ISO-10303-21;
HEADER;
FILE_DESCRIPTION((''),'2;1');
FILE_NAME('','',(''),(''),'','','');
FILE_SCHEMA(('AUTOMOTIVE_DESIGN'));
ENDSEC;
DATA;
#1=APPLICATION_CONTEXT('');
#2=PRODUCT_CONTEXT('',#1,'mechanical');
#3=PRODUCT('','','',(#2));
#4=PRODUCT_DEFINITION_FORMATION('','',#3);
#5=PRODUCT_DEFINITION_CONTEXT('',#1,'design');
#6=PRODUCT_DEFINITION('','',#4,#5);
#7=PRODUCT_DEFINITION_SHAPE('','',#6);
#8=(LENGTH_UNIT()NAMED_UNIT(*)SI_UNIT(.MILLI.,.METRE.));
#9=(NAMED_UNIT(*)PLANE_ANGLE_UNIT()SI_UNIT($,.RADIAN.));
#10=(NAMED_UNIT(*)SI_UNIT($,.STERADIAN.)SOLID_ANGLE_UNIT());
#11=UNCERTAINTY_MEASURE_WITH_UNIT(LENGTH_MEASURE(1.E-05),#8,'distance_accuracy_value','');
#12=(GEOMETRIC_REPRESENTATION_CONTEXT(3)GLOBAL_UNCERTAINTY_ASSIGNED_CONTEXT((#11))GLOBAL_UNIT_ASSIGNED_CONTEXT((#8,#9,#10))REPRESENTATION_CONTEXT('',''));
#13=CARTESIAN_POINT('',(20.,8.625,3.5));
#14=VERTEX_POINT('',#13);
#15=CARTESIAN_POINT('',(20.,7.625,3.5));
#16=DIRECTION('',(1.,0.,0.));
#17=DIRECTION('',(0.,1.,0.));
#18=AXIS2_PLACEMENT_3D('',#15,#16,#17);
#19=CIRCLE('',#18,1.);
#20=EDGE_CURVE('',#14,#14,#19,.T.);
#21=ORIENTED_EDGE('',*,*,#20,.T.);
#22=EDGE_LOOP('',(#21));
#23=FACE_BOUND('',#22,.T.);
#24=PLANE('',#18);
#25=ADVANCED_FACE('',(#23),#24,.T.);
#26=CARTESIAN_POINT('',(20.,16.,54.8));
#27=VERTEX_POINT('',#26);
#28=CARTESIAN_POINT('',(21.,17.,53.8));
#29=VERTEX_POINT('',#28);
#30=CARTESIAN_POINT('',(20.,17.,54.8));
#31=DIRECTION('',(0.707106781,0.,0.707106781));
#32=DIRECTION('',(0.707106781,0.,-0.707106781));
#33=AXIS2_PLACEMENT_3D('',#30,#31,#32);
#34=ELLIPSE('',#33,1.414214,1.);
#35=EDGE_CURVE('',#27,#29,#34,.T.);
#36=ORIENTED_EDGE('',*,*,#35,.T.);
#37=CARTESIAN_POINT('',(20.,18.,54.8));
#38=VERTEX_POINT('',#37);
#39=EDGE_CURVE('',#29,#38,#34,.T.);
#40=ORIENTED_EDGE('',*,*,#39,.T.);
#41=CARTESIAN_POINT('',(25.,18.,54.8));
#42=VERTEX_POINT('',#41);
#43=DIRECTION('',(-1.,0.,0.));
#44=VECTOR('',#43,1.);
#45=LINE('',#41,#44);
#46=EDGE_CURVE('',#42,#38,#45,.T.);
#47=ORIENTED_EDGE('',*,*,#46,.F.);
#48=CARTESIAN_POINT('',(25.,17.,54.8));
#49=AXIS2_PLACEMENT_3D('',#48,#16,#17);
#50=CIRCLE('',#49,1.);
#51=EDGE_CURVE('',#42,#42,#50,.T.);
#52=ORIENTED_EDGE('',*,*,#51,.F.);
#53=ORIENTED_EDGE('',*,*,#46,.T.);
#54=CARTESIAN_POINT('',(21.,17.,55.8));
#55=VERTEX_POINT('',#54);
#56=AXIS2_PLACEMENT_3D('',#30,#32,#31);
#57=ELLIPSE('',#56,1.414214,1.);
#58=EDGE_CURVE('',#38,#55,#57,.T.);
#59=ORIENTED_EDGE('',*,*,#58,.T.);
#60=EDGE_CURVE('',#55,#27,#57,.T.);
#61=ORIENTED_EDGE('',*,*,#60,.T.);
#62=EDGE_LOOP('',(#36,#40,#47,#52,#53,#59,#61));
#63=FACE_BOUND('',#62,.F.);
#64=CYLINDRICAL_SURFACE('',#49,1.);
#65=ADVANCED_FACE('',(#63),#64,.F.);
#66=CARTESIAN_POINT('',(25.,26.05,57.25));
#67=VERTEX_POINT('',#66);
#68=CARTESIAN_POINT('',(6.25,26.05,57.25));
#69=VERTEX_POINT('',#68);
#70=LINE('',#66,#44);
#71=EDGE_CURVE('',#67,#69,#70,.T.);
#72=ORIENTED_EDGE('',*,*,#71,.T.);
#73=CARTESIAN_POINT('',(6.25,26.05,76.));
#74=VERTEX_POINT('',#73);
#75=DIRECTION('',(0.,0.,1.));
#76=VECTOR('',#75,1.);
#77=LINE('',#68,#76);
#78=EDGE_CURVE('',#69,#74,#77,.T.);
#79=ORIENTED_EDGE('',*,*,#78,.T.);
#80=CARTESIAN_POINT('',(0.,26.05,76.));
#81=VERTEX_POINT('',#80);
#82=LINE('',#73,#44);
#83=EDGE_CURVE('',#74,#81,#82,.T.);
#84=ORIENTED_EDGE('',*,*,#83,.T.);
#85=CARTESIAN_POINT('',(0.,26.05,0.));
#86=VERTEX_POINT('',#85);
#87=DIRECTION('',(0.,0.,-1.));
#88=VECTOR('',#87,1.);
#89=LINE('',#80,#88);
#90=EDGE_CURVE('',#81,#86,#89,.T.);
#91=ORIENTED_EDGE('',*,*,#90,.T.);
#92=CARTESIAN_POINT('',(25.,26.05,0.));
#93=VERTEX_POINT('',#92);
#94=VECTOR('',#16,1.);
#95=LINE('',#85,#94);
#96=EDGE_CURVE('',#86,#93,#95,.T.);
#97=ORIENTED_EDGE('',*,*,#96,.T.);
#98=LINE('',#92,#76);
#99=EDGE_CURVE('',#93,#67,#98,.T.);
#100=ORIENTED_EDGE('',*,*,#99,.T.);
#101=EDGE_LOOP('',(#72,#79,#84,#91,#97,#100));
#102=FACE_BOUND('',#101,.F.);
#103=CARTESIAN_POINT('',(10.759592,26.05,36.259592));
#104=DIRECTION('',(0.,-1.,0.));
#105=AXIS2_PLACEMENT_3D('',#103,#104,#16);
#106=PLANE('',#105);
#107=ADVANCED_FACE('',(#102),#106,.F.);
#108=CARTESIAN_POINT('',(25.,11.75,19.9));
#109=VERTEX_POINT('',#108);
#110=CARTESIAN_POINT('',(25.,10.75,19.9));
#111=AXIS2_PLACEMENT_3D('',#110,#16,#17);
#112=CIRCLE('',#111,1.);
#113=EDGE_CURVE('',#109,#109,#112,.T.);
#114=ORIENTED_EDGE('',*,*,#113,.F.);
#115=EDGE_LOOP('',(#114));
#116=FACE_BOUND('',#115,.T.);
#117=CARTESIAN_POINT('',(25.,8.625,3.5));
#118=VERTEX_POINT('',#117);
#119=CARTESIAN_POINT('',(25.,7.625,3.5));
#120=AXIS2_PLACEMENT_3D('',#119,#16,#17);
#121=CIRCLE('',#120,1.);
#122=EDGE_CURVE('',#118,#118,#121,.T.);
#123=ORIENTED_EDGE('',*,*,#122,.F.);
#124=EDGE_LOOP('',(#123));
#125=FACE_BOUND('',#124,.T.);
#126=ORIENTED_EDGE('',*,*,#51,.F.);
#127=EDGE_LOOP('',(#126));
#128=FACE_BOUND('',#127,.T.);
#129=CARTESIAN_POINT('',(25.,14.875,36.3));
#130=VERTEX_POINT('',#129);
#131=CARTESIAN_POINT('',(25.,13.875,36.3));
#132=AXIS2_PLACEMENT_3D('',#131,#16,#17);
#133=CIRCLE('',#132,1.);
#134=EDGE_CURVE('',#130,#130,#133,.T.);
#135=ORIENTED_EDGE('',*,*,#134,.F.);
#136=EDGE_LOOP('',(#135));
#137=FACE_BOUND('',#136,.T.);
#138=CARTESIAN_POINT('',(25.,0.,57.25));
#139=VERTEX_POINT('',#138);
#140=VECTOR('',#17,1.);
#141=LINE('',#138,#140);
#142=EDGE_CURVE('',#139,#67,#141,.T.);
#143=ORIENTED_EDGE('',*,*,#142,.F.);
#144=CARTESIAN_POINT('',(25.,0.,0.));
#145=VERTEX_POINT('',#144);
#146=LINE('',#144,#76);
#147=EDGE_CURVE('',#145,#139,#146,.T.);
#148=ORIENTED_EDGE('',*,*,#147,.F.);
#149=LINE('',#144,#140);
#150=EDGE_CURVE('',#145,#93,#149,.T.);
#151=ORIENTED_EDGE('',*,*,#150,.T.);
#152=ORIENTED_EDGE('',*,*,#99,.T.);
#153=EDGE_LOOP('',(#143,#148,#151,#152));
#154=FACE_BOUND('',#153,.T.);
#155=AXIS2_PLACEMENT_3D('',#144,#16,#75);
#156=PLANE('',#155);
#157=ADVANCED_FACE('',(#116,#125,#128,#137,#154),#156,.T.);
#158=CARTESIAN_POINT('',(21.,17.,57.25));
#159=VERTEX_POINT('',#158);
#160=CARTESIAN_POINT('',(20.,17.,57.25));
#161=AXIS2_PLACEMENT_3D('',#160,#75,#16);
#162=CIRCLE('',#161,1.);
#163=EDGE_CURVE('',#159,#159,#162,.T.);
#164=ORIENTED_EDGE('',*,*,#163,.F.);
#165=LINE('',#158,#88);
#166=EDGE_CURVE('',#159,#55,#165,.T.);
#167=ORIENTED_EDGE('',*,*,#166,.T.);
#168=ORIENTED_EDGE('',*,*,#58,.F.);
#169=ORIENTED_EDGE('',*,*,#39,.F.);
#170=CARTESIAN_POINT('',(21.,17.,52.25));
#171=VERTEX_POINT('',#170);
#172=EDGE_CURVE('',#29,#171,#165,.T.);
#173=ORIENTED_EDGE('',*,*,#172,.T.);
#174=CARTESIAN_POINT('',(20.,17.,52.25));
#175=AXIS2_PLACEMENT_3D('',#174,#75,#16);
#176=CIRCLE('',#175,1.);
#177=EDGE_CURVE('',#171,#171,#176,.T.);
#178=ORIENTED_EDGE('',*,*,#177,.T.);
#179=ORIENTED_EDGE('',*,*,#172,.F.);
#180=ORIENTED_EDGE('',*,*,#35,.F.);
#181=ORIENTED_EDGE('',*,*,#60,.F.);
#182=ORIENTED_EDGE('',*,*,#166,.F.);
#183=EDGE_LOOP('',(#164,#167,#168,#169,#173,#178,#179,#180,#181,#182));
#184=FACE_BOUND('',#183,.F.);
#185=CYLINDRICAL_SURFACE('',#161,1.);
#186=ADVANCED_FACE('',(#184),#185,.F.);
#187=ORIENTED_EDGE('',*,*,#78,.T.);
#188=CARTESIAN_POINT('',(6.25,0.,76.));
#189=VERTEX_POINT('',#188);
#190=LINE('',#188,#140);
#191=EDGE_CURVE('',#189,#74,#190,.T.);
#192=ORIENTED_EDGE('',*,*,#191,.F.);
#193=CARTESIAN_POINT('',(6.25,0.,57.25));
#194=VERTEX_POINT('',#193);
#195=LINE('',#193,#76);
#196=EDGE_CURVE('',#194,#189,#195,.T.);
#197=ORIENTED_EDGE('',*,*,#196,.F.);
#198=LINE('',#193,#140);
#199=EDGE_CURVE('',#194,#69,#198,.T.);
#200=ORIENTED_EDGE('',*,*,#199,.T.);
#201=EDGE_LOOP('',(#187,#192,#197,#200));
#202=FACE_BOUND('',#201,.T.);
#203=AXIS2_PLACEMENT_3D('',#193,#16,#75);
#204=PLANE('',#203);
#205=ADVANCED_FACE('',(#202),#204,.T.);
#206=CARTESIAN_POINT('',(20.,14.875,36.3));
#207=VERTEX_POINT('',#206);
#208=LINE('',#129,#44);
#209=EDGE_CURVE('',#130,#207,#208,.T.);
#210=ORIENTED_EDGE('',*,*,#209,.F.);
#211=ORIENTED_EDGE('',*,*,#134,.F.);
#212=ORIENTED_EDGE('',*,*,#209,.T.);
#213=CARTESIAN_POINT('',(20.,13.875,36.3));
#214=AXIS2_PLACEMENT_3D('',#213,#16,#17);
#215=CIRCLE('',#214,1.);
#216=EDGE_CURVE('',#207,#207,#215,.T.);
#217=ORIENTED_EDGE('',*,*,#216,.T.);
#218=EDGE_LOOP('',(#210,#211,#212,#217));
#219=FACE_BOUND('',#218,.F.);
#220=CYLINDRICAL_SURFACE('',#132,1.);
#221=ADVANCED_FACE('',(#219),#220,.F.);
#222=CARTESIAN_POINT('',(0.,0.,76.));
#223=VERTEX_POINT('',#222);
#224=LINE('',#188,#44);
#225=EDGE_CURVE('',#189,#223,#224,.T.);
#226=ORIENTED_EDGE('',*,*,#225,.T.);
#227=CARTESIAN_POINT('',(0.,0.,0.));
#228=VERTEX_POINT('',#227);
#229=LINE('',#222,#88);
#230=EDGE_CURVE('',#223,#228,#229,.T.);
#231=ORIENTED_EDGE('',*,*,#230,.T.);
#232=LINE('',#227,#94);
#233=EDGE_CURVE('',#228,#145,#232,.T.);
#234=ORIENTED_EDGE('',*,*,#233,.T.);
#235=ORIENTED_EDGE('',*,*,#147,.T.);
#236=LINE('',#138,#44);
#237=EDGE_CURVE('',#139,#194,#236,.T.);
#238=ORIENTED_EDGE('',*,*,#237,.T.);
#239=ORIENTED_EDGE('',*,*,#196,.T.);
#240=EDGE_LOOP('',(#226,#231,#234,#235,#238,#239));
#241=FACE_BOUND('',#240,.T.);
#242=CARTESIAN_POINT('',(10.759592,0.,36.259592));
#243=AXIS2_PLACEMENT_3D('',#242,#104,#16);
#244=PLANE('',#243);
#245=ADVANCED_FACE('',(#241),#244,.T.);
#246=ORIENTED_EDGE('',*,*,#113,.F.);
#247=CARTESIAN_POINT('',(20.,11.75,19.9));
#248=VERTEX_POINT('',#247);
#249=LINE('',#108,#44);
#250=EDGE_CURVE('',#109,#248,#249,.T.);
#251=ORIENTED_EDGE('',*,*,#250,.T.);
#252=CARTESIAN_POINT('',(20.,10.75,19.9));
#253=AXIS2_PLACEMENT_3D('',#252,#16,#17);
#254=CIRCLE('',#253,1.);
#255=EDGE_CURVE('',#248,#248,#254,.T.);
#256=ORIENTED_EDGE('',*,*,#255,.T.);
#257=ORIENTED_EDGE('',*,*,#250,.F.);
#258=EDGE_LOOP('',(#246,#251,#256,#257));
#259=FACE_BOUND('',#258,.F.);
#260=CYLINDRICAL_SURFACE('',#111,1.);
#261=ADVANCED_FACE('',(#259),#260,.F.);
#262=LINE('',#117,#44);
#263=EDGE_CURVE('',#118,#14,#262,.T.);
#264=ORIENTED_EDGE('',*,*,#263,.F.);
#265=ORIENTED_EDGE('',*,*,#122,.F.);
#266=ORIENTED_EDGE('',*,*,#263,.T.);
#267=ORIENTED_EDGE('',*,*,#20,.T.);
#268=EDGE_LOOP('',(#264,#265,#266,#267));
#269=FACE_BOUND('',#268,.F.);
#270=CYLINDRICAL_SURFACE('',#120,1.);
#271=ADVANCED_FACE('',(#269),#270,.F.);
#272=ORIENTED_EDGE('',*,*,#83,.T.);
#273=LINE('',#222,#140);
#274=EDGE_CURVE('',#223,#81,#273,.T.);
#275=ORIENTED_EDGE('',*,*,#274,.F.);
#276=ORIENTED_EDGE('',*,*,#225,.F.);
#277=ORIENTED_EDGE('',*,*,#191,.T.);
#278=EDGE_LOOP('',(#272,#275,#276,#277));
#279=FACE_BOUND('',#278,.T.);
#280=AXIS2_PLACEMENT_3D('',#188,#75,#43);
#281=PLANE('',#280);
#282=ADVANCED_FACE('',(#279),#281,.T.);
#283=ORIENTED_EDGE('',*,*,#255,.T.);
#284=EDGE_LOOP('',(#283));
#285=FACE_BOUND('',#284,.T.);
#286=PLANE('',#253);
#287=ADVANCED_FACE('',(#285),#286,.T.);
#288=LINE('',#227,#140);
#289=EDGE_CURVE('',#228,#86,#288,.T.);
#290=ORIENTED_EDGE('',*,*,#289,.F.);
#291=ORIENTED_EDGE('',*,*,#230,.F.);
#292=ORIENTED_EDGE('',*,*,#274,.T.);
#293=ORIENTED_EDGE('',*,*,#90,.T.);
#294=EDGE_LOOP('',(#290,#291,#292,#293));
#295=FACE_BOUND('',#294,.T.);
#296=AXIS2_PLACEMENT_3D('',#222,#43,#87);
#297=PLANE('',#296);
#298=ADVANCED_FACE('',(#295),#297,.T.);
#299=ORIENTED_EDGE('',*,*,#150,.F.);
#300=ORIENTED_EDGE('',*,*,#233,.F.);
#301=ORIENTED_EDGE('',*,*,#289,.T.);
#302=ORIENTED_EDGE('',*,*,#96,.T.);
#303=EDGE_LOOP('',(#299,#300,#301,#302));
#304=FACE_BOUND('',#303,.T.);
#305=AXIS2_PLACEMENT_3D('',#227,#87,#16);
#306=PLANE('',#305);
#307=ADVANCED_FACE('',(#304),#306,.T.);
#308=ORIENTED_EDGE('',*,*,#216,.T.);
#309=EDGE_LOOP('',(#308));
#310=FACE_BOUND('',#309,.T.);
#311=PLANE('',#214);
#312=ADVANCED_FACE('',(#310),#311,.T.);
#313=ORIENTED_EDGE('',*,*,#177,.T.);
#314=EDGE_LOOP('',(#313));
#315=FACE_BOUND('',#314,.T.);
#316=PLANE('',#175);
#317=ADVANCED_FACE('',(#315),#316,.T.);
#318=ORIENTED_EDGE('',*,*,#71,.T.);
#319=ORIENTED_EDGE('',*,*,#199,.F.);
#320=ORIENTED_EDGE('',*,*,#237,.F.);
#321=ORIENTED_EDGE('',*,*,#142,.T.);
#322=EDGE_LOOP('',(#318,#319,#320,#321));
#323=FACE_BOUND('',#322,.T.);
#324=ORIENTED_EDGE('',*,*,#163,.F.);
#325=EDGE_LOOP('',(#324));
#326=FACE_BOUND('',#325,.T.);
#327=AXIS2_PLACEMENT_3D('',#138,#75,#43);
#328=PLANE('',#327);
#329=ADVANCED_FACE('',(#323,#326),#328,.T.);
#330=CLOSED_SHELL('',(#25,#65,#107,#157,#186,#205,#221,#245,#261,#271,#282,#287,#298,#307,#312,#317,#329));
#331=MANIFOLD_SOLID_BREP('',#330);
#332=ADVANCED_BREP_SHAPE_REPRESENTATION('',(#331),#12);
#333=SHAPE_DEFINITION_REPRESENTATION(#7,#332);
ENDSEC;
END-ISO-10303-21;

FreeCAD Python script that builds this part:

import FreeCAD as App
import Part
import Sketcher

V = App.Vector


def add_polygon(sketch, points):
    """Adds a closed chain of lines whose ends are joined by coincident constraints."""
    first, n = sketch.GeometryCount, len(points)
    for a, b in zip(points, points[1:] + points[:1]):
        sketch.addGeometry(Part.LineSegment(App.Vector(*a, 0), App.Vector(*b, 0)), False)
    for i in range(n):
        sketch.addConstraint(Sketcher.Constraint("Coincident", first + i, 2, first + (i + 1) % n, 1))

doc = App.newDocument("Part")
body = doc.addObject("PartDesign::Body", "Body")

sketch1 = body.newObject("Sketcher::SketchObject", "Sketch")
sketch1.AttachmentSupport = (doc.getObject("XZ_Plane"), [""])
sketch1.MapMode = "FlatFace"
add_polygon(sketch1, [(0, 76), (0, 0), (25, 0), (25, 57.25), (6.25, 57.25), (6.25, 76)])
sketch1.addConstraint(Sketcher.Constraint("Vertical", 0))
sketch1.addConstraint(Sketcher.Constraint("Horizontal", 1))
sketch1.addConstraint(Sketcher.Constraint("Vertical", 2))
sketch1.addConstraint(Sketcher.Constraint("Horizontal", 3))
sketch1.addConstraint(Sketcher.Constraint("Vertical", 4))
sketch1.addConstraint(Sketcher.Constraint("Horizontal", 5))
sketch1.addConstraint(Sketcher.Constraint("Coincident", 0, 2, -1, 1))
sketch1.addConstraint(Sketcher.Constraint("Equal", 3, 4))
sketch1.addConstraint(Sketcher.Constraint("DistanceX", 1, 1, 1, 2, 25.0))
sketch1.addConstraint(Sketcher.Constraint("DistanceY", 0, 2, 0, 1, 76.0))
sketch1.addConstraint(Sketcher.Constraint("DistanceX", 3, 2, 3, 1, 18.75))
pad1 = body.newObject("PartDesign::Pad", "Pad")
pad1.Profile = sketch1
pad1.Length = 26.05
pad1.Reversed = True

sketch2 = body.newObject("Sketcher::SketchObject", "Sketch001")
sketch2.AttachmentSupport = (doc.getObject("YZ_Plane"), [""])
sketch2.MapMode = "FlatFace"
sketch2.AttachmentOffset = App.Placement(V(0, 0, 25), App.Rotation())
sketch2.addGeometry(Part.Circle(V(17, 54.8, 0), V(0, 0, 1), 1), False)
sketch2.addGeometry(Part.Circle(V(13.875, 36.3, 0), V(0, 0, 1), 1), False)
sketch2.addGeometry(Part.Circle(V(10.75, 19.9, 0), V(0, 0, 1), 1), False)
sketch2.addGeometry(Part.Circle(V(7.625, 3.5, 0), V(0, 0, 1), 1), False)
sketch2.addConstraint(Sketcher.Constraint("Equal", 0, 1))
sketch2.addConstraint(Sketcher.Constraint("Equal", 1, 2))
sketch2.addConstraint(Sketcher.Constraint("Equal", 2, 3))
sketch2.addConstraint(Sketcher.Constraint("Diameter", 0, 2.0))
sketch2.addConstraint(Sketcher.Constraint("DistanceX", -1, 1, 0, 3, 17.0))
sketch2.addConstraint(Sketcher.Constraint("DistanceY", -1, 1, 0, 3, 54.8))
sketch2.addConstraint(Sketcher.Constraint("DistanceY", -1, 1, 1, 3, 36.3))
sketch2.addConstraint(Sketcher.Constraint("DistanceY", -1, 1, 2, 3, 19.9))
sketch2.addConstraint(Sketcher.Constraint("DistanceY", -1, 1, 3, 3, 3.5))
sketch2.addConstraint(Sketcher.Constraint("DistanceX", -1, 1, 2, 3, 10.75))
sketch2.addConstraint(Sketcher.Constraint("DistanceX", 3, 3, 1, 3, 6.25))
sketch2.addConstraint(Sketcher.Constraint("DistanceX", -1, 1, 1, 3, 13.875))
pocket1 = body.newObject("PartDesign::Pocket", "Pocket")
pocket1.Profile = sketch2
pocket1.Length = 5

sketch3 = body.newObject("Sketcher::SketchObject", "Sketch002")
sketch3.AttachmentSupport = (doc.getObject("XY_Plane"), [""])
sketch3.MapMode = "FlatFace"
sketch3.AttachmentOffset = App.Placement(V(0, 0, 57.25), App.Rotation())
sketch3.addGeometry(Part.Circle(V(20, 17, 0), V(0, 0, 1), 1), False)
sketch3.addConstraint(Sketcher.Constraint("Diameter", 0, 2.0))
sketch3.addConstraint(Sketcher.Constraint("DistanceX", -1, 1, 0, 3, 20.0))
sketch3.addConstraint(Sketcher.Constraint("DistanceY", -1, 1, 0, 3, 17.0))
pocket2 = body.newObject("PartDesign::Pocket", "Pocket001")
pocket2.Profile = sketch3
pocket2.Length = 5

doc.recompute()
